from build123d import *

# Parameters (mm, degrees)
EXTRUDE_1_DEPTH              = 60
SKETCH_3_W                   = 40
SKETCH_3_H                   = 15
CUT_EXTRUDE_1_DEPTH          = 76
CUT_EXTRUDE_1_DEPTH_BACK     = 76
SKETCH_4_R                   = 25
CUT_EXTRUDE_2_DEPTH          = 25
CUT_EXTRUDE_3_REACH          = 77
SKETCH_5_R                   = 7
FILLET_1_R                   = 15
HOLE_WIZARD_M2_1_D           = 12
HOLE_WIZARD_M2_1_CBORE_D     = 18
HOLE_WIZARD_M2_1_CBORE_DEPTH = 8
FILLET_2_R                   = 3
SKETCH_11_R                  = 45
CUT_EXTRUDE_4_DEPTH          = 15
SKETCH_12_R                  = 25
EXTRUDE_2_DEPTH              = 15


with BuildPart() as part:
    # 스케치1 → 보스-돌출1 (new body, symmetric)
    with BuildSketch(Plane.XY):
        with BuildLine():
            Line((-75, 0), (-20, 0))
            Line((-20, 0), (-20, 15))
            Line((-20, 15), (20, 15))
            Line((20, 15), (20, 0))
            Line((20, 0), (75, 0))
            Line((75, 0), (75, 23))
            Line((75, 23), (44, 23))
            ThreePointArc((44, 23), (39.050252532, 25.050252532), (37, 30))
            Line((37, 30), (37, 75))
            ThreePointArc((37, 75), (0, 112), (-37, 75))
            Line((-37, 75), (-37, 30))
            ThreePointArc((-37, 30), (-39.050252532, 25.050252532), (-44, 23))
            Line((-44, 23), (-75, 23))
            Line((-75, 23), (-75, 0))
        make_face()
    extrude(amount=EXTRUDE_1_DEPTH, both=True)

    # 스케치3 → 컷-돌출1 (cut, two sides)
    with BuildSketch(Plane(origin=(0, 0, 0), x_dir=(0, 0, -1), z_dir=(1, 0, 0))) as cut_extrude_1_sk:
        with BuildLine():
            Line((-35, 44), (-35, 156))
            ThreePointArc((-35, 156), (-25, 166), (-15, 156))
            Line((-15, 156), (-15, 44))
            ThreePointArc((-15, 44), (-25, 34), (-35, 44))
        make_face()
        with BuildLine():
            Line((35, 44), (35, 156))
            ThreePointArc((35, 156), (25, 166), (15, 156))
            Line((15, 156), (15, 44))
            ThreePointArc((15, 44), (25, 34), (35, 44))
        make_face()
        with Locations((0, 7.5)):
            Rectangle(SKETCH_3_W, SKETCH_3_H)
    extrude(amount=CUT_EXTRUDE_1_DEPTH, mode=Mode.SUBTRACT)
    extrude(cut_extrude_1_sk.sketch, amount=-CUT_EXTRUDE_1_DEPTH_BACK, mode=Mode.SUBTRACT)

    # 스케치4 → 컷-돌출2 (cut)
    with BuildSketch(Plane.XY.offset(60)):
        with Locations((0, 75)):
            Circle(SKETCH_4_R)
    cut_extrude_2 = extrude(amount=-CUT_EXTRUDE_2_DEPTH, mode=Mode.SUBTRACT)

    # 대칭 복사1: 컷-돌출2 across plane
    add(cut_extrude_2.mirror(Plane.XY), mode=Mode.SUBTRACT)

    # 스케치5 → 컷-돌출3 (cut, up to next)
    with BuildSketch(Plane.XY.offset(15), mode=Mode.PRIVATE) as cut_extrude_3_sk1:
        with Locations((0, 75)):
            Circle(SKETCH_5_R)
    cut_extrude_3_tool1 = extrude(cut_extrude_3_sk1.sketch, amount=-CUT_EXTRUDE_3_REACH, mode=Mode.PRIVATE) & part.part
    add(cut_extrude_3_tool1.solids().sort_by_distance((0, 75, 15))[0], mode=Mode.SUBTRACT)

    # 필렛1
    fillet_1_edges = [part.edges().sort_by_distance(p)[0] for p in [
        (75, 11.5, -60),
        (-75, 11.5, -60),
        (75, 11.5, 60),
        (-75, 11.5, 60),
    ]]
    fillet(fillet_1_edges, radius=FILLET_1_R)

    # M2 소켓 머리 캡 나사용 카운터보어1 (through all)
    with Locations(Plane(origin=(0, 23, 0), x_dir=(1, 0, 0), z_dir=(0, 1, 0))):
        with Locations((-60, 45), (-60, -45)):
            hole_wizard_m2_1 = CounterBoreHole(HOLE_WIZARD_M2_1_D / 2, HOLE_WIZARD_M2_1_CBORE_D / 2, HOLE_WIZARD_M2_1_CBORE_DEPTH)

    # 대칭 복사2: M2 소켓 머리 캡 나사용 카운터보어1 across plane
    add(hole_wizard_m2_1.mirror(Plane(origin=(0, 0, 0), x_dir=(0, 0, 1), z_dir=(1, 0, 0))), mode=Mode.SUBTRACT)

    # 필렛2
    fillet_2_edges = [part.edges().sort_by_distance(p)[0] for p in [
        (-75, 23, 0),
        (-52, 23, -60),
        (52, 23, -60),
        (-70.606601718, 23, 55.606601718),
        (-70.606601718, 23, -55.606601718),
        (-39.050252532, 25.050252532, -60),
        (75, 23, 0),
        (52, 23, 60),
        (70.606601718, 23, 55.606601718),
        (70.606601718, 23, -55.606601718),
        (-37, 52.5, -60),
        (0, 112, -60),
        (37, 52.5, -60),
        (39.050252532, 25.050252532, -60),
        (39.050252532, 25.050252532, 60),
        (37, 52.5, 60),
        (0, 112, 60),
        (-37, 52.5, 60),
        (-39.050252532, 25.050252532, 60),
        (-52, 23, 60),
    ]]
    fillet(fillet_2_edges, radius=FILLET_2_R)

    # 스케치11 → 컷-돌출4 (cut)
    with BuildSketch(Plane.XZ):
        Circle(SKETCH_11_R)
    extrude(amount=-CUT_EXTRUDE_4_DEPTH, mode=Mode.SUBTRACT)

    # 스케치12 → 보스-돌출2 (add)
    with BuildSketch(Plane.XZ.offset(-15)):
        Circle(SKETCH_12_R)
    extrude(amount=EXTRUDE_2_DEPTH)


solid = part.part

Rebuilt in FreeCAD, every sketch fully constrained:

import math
import FreeCAD as App
import Part
import Sketcher
from FreeCAD import Vector
Q = App.Units.Quantity


def edges_at(feature, points):
    """Names of the edges that pass closest to the given points."""
    edges = feature.Shape.Edges
    near = lambda p: min(range(len(edges)), key=lambda i: edges[i].distToShape(Part.Vertex(*p))[0])
    return sorted({f"Edge{near(p) + 1}" for p in points})

doc = App.newDocument("Part")
params = doc.addObject("Spreadsheet::Sheet", "Params")
for row, (alias, value) in enumerate([
    ("sketch1_radius", "7 mm"),
    ("sketch1_radius2", "37 mm"),
    ("sketch1_width", "55 mm"),
    ("sketch1_width2", "40 mm"),
    ("sketch1_height", "15 mm"),
    ("pad1_length", "120 mm"),
    ("sketch2_radius", "10 mm"),
    ("sketch2_width", "112 mm"),
    ("sketch2_width2", "15 mm"),
    ("sketch2_height", "40 mm"),
    ("sketch3_diameter", "50 mm"),
    ("pocket2_length", "25 mm"),
    ("sketch4_diameter", "14 mm"),
    ("fillet_radius", "15 mm"),
    ("sketch5_diameter", "12 mm"),
    ("hole_diameter", "12 mm"),
    ("hole_cbore_diameter", "18 mm"),
    ("hole_cbore_depth", "8 mm"),
    ("fillet2_radius", "3 mm"),
    ("sketch6_diameter", "90 mm"),
    ("pocket4_length", "15 mm"),
    ("sketch7_diameter", "50 mm"),
    ("pad2_length", "15 mm"),
], start=1):
    params.set(f"A{row}", alias)
    params.set(f"B{row}", "=" + value)
    params.setAlias(f"B{row}", alias)

body = doc.addObject("PartDesign::Body", "Body")

sketch1 = doc.addObject("Sketcher::SketchObject", "Sketch")
body.addObject(sketch1)
sketch1.AttachmentSupport = (doc.XY_Plane, [""])
sketch1.MapMode = "FlatFace"
sketch1.addGeometry([
    Part.LineSegment(Vector(-75, 0, 0), Vector(-20, 0, 0)),
    Part.LineSegment(Vector(-20, 0, 0), Vector(-20, 15, 0)),
    Part.LineSegment(Vector(-20, 15, 0), Vector(20, 15, 0)),
    Part.LineSegment(Vector(20, 15, 0), Vector(20, 0, 0)),
    Part.LineSegment(Vector(20, 0, 0), Vector(75, 0, 0)),
    Part.LineSegment(Vector(75, 0, 0), Vector(75, 23, 0)),
    Part.LineSegment(Vector(75, 23, 0), Vector(44, 23, 0)),
    Part.ArcOfCircle(Part.Circle(Vector(44, 30, 0), Vector(0, 0, 1), 7), math.radians(-180), math.radians(-90)),
    Part.LineSegment(Vector(37, 30, 0), Vector(37, 75, 0)),
    Part.ArcOfCircle(Part.Circle(Vector(0, 75, 0), Vector(0, 0, 1), 37), math.radians(0), math.radians(180)),
    Part.LineSegment(Vector(-37, 75, 0), Vector(-37, 30, 0)),
    Part.ArcOfCircle(Part.Circle(Vector(-44, 30, 0), Vector(0, 0, 1), 7), math.radians(-90), math.radians(0)),
    Part.LineSegment(Vector(-44, 23, 0), Vector(-75, 23, 0)),
    Part.LineSegment(Vector(-75, 23, 0), Vector(-75, 0, 0)),
], False)
sketch1.addConstraint([
    Sketcher.Constraint("Coincident", 0, 2, 1, 1),
    Sketcher.Constraint("Coincident", 1, 2, 2, 1),
    Sketcher.Constraint("Coincident", 2, 2, 3, 1),
    Sketcher.Constraint("Coincident", 3, 2, 4, 1),
    Sketcher.Constraint("Coincident", 4, 2, 5, 1),
    Sketcher.Constraint("Coincident", 5, 2, 6, 1),
    Sketcher.Constraint("Tangent", 6, 2, 7, 2),
    Sketcher.Constraint("Tangent", 7, 1, 8, 1),
    Sketcher.Constraint("Tangent", 8, 2, 9, 1),
    Sketcher.Constraint("Tangent", 9, 2, 10, 1),
    Sketcher.Constraint("Tangent", 10, 2, 11, 2),
    Sketcher.Constraint("Tangent", 11, 1, 12, 1),
    Sketcher.Constraint("Coincident", 12, 2, 13, 1),
    Sketcher.Constraint("Coincident", 13, 2, 0, 1),
    Sketcher.Constraint("Horizontal", 0),
    Sketcher.Constraint("Vertical", 1),
    Sketcher.Constraint("Horizontal", 2),
    Sketcher.Constraint("Vertical", 3),
    Sketcher.Constraint("Horizontal", 4),
    Sketcher.Constraint("Vertical", 5),
    Sketcher.Constraint("Horizontal", 6),
    Sketcher.Constraint("Vertical", 8),
    Sketcher.Constraint("Vertical", 10),
    Sketcher.Constraint("Horizontal", 12),
    Sketcher.Constraint("Vertical", 13),
    Sketcher.Constraint("Equal", 7, 11),
    Sketcher.Constraint("Symmetric", 0, 2, 3, 2, -1, 1),
    Sketcher.Constraint("Symmetric", 7, 3, 11, 3, -2),
    Sketcher.Constraint("Symmetric", 4, 2, 13, 2, -2),
    Sketcher.Constraint("Radius", 7, Q("7 mm")),
    Sketcher.Constraint("Radius", 9, Q("37 mm")),
    Sketcher.Constraint("DistanceX", 0, 1, 0, 2, Q("55 mm")),
    Sketcher.Constraint("DistanceX", 2, 1, 2, 2, Q("40 mm")),
    Sketcher.Constraint("DistanceY", 1, 1, 1, 2, Q("15 mm")),
    Sketcher.Constraint("DistanceY", 5, 1, 5, 2, Q("23 mm")),
    Sketcher.Constraint("DistanceY", 8, 1, 8, 2, Q("45 mm")),
])
sketch1.setExpression("Constraints[29]", "Params.sketch1_radius")
sketch1.setExpression("Constraints[30]", "Params.sketch1_radius2")
sketch1.setExpression("Constraints[31]", "Params.sketch1_width")
sketch1.setExpression("Constraints[32]", "Params.sketch1_width2")
sketch1.setExpression("Constraints[33]", "Params.sketch1_height")
pad1 = doc.addObject("PartDesign::Pad", "Pad")
body.addObject(pad1)
pad1.Profile = sketch1
pad1.setExpression("Length", "Params.pad1_length")
pad1.Midplane = True

sketch2 = doc.addObject("Sketcher::SketchObject", "Sketch001")
body.addObject(sketch2)
sketch2.AttachmentSupport = (doc.YZ_Plane, [""])
sketch2.MapMode = "FlatFace"
sketch2.addGeometry([
    Part.LineSegment(Vector(156, 35, 0), Vector(44, 35, 0)),
    Part.ArcOfCircle(Part.Circle(Vector(44, 25, 0), Vector(0, 0, 1), 10), math.radians(90), math.radians(270)),
    Part.LineSegment(Vector(44, 15, 0), Vector(156, 15, 0)),
    Part.ArcOfCircle(Part.Circle(Vector(156, 25, 0), Vector(0, 0, 1), 10), math.radians(-90), math.radians(90)),
    Part.LineSegment(Vector(44, -35, 0), Vector(156, -35, 0)),
    Part.ArcOfCircle(Part.Circle(Vector(156, -25, 0), Vector(0, 0, 1), 10), math.radians(-90), math.radians(90)),
    Part.LineSegment(Vector(156, -15, 0), Vector(44, -15, 0)),
    Part.ArcOfCircle(Part.Circle(Vector(44, -25, 0), Vector(0, 0, 1), 10), math.radians(90), math.radians(270)),
    Part.LineSegment(Vector(15, 20, 0), Vector(0, 20, 0)),
    Part.LineSegment(Vector(0, 20, 0), Vector(0, -20, 0)),
    Part.LineSegment(Vector(0, -20, 0), Vector(15, -20, 0)),
    Part.LineSegment(Vector(15, -20, 0), Vector(15, 20, 0)),
], False)
sketch2.addConstraint([
    Sketcher.Constraint("Tangent", 0, 2, 1, 1),
    Sketcher.Constraint("Tangent", 1, 2, 2, 1),
    Sketcher.Constraint("Tangent", 2, 2, 3, 1),
    Sketcher.Constraint("Tangent", 3, 2, 0, 1),
    Sketcher.Constraint("Tangent", 4, 2, 5, 1),
    Sketcher.Constraint("Tangent", 5, 2, 6, 1),
    Sketcher.Constraint("Tangent", 6, 2, 7, 1),
    Sketcher.Constraint("Tangent", 7, 2, 4, 1),
    Sketcher.Constraint("Coincident", 8, 2, 9, 1),
    Sketcher.Constraint("Coincident", 9, 2, 10, 1),
    Sketcher.Constraint("Coincident", 10, 2, 11, 1),
    Sketcher.Constraint("Coincident", 11, 2, 8, 1),
    Sketcher.Constraint("Horizontal", 0),
    Sketcher.Constraint("Horizontal", 2),
    Sketcher.Constraint("Horizontal", 4),
    Sketcher.Constraint("Horizontal", 6),
    Sketcher.Constraint("Horizontal", 8),
    Sketcher.Constraint("Vertical", 9),
    Sketcher.Constraint("Horizontal", 10),
    Sketcher.Constraint("Vertical", 11),
    Sketcher.Constraint("Equal", 3, 5),
    Sketcher.Constraint("Symmetric", 8, 2, 9, 2, -1, 1),
    Sketcher.Constraint("Symmetric", 3, 3, 5, 3, -1),
    Sketcher.Constraint("Vertical", 1, 3, 7, 3),
    Sketcher.Constraint("Radius", 1, Q("10 mm")),
    Sketcher.Constraint("DistanceX", 0, 2, 0, 1, Q("112 mm")),
    Sketcher.Constraint("DistanceX", 8, 2, 8, 1, Q("15 mm")),
    Sketcher.Constraint("DistanceY", 9, 2, 9, 1, Q("40 mm")),
    Sketcher.Constraint("DistanceX", -1, 1, 1, 3, Q("44 mm")),
    Sketcher.Constraint("DistanceY", -1, 1, 1, 3, Q("25 mm")),
])
sketch2.setExpression("Constraints[24]", "Params.sketch2_radius")
sketch2.setExpression("Constraints[25]", "Params.sketch2_width")
sketch2.setExpression("Constraints[26]", "Params.sketch2_width2")
sketch2.setExpression("Constraints[27]", "Params.sketch2_height")
pocket1 = doc.addObject("PartDesign::Pocket", "Pocket")
body.addObject(pocket1)
pocket1.Profile = sketch2
pocket1.Type = "ThroughAll"
pocket1.Midplane = True

sketch3 = doc.addObject("Sketcher::SketchObject", "Sketch002")
body.addObject(sketch3)
sketch3.AttachmentSupport = (doc.XY_Plane, [""])
sketch3.MapMode = "FlatFace"
sketch3.AttachmentOffset = App.Placement(Vector(0, 0, 60), App.Rotation())
sketch3.addGeometry(Part.Circle(Vector(0, 75, 0), Vector(0, 0, 1), 25), False)
sketch3.addConstraint([
    Sketcher.Constraint("PointOnObject", 0, 3, -2),
    Sketcher.Constraint("Diameter", 0, Q("50 mm")),
    Sketcher.Constraint("DistanceY", -1, 1, 0, 3, Q("75 mm")),
])
sketch3.setExpression("Constraints[1]", "Params.sketch3_diameter")
pocket2 = doc.addObject("PartDesign::Pocket", "Pocket001")
body.addObject(pocket2)
pocket2.Profile = sketch3
pocket2.setExpression("Length", "Params.pocket2_length")
doc.recompute()

mirrored = doc.addObject("PartDesign::Mirrored", "Mirrored")
body.addObject(mirrored)
mirrored.Originals = [pocket2]
mirrored.MirrorPlane = (doc.XY_Plane, [""])
body.Tip = mirrored

sketch4 = doc.addObject("Sketcher::SketchObject", "Sketch003")
body.addObject(sketch4)
sketch4.AttachmentSupport = (doc.XY_Plane, [""])
sketch4.MapMode = "FlatFace"
sketch4.AttachmentOffset = App.Placement(Vector(0, 0, 15), App.Rotation())
sketch4.addGeometry(Part.Circle(Vector(0, 75, 0), Vector(0, 0, 1), 7), False)
sketch4.addConstraint([
    Sketcher.Constraint("PointOnObject", 0, 3, -2),
    Sketcher.Constraint("Diameter", 0, Q("14 mm")),
    Sketcher.Constraint("DistanceY", -1, 1, 0, 3, Q("75 mm")),
])
sketch4.setExpression("Constraints[1]", "Params.sketch4_diameter")
pocket3 = doc.addObject("PartDesign::Pocket", "Pocket002")
body.addObject(pocket3)
pocket3.Profile = sketch4
pocket3.Type = "UpToFirst"
doc.recompute()

fillet = doc.addObject("PartDesign::Fillet", "Fillet")
body.addObject(fillet)
fillet.Base = (pocket3, edges_at(pocket3, [
    (75, 11.5, -60),
    (-75, 11.5, -60),
    (75, 11.5, 60),
    (-75, 11.5, 60),
]))
fillet.setExpression("Radius", "Params.fillet_radius")

sketch5 = doc.addObject("Sketcher::SketchObject", "Sketch004")
body.addObject(sketch5)
sketch5.AttachmentSupport = (doc.XZ_Plane, [""])
sketch5.MapMode = "FlatFace"
sketch5.AttachmentOffset = App.Placement(Vector(0, 0, -23), App.Rotation())
sketch5.addGeometry([
    Part.Circle(Vector(-60, -45, 0), Vector(0, 0, 1), 6),
    Part.Circle(Vector(-60, 45, 0), Vector(0, 0, 1), 6),
], False)
sketch5.addConstraint([
    Sketcher.Constraint("Equal", 0, 1),
    Sketcher.Constraint("Symmetric", 0, 3, 1, 3, -1),
    Sketcher.Constraint("Diameter", 0, Q("12 mm")),
    Sketcher.Constraint("DistanceX", 0, 3, -1, 1, Q("60 mm")),
    Sketcher.Constraint("DistanceY", 0, 3, -1, 1, Q("45 mm")),
])
sketch5.setExpression("Constraints[2]", "Params.sketch5_diameter")
doc.recompute()
hole = doc.addObject("PartDesign::Hole", "Hole")
body.addObject(hole)
hole.Profile = sketch5
hole.ThreadType = "None"
hole.setExpression("Diameter", "Params.hole_diameter")
hole.DepthType = "ThroughAll"
hole.HoleCutType = "Counterbore"
hole.setExpression("HoleCutDiameter", "Params.hole_cbore_diameter")
hole.setExpression("HoleCutDepth", "Params.hole_cbore_depth")
hole.Reversed = True
doc.recompute()

mirrored2 = doc.addObject("PartDesign::Mirrored", "Mirrored001")
body.addObject(mirrored2)
mirrored2.Originals = [hole]
mirrored2.MirrorPlane = (doc.YZ_Plane, [""])
body.Tip = mirrored2
doc.recompute()

fillet2 = doc.addObject("PartDesign::Fillet", "Fillet001")
body.addObject(fillet2)
fillet2.Base = (mirrored2, edges_at(mirrored2, [
    (-75, 23, 0),
    (-52, 23, -60),
    (52, 23, -60),
    (-70.607, 23, 55.607),
    (-70.607, 23, -55.607),
    (-39.05, 25.05, -60),
    (75, 23, 0),
    (52, 23, 60),
    (70.607, 23, 55.607),
    (70.607, 23, -55.607),
    (-37, 52.5, -60),
    (0, 112, -60),
    (37, 52.5, -60),
    (39.05, 25.05, -60),
    (39.05, 25.05, 60),
    (37, 52.5, 60),
    (0, 112, 60),
    (-37, 52.5, 60),
    (-39.05, 25.05, 60),
    (-52, 23, 60),
]))
fillet2.setExpression("Radius", "Params.fillet2_radius")

sketch6 = doc.addObject("Sketcher::SketchObject", "Sketch005")
body.addObject(sketch6)
sketch6.AttachmentSupport = (doc.XZ_Plane, [""])
sketch6.MapMode = "FlatFace"
sketch6.addGeometry(Part.Circle(Vector(0, 0, 0), Vector(0, 0, 1), 45), False)
sketch6.addConstraint([
    Sketcher.Constraint("Coincident", 0, 3, -1, 1),
    Sketcher.Constraint("Diameter", 0, Q("90 mm")),
])
sketch6.setExpression("Constraints[1]", "Params.sketch6_diameter")
pocket4 = doc.addObject("PartDesign::Pocket", "Pocket003")
body.addObject(pocket4)
pocket4.Profile = sketch6
pocket4.setExpression("Length", "Params.pocket4_length")

sketch7 = doc.addObject("Sketcher::SketchObject", "Sketch006")
body.addObject(sketch7)
sketch7.AttachmentSupport = (doc.XZ_Plane, [""])
sketch7.MapMode = "FlatFace"
sketch7.AttachmentOffset = App.Placement(Vector(0, 0, -15), App.Rotation())
sketch7.addGeometry(Part.Circle(Vector(0, 0, 0), Vector(0, 0, 1), 25), False)
sketch7.addConstraint([
    Sketcher.Constraint("Coincident", 0, 3, -1, 1),
    Sketcher.Constraint("Diameter", 0, Q("50 mm")),
])
sketch7.setExpression("Constraints[1]", "Params.sketch7_diameter")
pad2 = doc.addObject("PartDesign::Pad", "Pad001")
body.addObject(pad2)
pad2.Profile = sketch7
pad2.setExpression("Length", "Params.pad2_length")

doc.recompute()
